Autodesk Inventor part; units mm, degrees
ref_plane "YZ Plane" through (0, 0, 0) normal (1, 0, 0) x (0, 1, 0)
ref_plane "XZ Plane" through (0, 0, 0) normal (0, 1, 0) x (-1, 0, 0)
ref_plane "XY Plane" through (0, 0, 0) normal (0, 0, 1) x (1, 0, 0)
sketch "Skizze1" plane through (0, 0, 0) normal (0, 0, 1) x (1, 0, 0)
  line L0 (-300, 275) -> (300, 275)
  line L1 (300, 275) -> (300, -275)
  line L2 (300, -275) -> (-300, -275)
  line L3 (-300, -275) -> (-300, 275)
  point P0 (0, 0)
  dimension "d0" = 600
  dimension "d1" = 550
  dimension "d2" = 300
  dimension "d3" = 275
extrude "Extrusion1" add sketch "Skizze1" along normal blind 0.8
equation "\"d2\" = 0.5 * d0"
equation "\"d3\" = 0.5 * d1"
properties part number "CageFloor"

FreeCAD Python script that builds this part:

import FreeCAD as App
import Part
import Sketcher
from FreeCAD import Vector
Q = App.Units.Quantity


def add_polygon(sketch, points):
    """Adds a closed chain of lines whose ends are joined by coincident constraints."""
    first, n = sketch.GeometryCount, len(points)
    for a, b in zip(points, points[1:] + points[:1]):
        sketch.addGeometry(Part.LineSegment(App.Vector(*a, 0), App.Vector(*b, 0)), False)
    for i in range(n):
        sketch.addConstraint(Sketcher.Constraint("Coincident", first + i, 2, first + (i + 1) % n, 1))

doc = App.newDocument("Part")
params = doc.addObject("Spreadsheet::Sheet", "Params")
for row, (alias, value) in enumerate([
    ("sketch1_width", "600 mm"),
    ("sketch1_height", "550 mm"),
    ("pad1_length", "0.8 mm"),
], start=1):
    params.set(f"A{row}", alias)
    params.set(f"B{row}", "=" + value)
    params.setAlias(f"B{row}", alias)

body = doc.addObject("PartDesign::Body", "Body")

# Sketch on XY plane
sketch1 = body.newObject("Sketcher::SketchObject", "Sketch")
sketch1.AttachmentSupport = (doc.getObject("XY_Plane"), [""])
sketch1.MapMode = "FlatFace"
add_polygon(sketch1, [(300, 275), (-300, 275), (-300, -275), (300, -275)])  # lines 0-3
sketch1.addConstraint([
    Sketcher.Constraint("Horizontal", 0),
    Sketcher.Constraint("Vertical", 1),
    Sketcher.Constraint("Horizontal", 2),
    Sketcher.Constraint("Vertical", 3),
    Sketcher.Constraint("Symmetric", 0, 2, 2, 2, -1, 1),
    Sketcher.Constraint("DistanceX", 0, 2, 0, 1, Q("600 mm")),
    Sketcher.Constraint("DistanceY", 1, 2, 1, 1, Q("550 mm")),
])
sketch1.setExpression("Constraints[9]", "Params.sketch1_width")
sketch1.setExpression("Constraints[10]", "Params.sketch1_height")
pad1 = body.newObject("PartDesign::Pad", "Pad")
pad1.Profile = sketch1
pad1.setExpression("Length", "Params.pad1_length")

doc.recompute()
